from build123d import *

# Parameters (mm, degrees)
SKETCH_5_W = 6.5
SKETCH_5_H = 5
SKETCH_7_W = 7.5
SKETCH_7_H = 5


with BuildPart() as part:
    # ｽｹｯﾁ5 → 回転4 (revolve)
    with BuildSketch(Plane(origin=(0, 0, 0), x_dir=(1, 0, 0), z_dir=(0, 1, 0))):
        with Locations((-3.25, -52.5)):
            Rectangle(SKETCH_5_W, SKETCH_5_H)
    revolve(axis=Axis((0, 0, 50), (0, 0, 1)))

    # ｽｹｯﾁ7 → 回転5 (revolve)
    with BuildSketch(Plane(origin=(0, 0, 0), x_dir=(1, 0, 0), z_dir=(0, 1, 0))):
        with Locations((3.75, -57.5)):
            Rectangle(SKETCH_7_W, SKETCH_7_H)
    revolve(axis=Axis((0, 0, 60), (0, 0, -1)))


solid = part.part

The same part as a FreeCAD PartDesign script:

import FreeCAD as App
import Part
import Sketcher
from FreeCAD import Vector


def add_polygon(sketch, points):
    """Adds a closed chain of lines whose ends are joined by coincident constraints."""
    first, n = sketch.GeometryCount, len(points)
    for a, b in zip(points, points[1:] + points[:1]):
        sketch.addGeometry(Part.LineSegment(App.Vector(*a, 0), App.Vector(*b, 0)), False)
    for i in range(n):
        sketch.addConstraint(Sketcher.Constraint("Coincident", first + i, 2, first + (i + 1) % n, 1))

doc = App.newDocument("Part")
body = doc.addObject("PartDesign::Body", "Body")

sketch1 = doc.addObject("Sketcher::SketchObject", "Sketch")
body.addObject(sketch1)
sketch1.AttachmentSupport = (doc.XZ_Plane, [""])
sketch1.MapMode = "FlatFace"
add_polygon(sketch1, [(-6, 50), (-6, 55), (0, 55), (0, 50)])
sketch1.addConstraint([
    Sketcher.Constraint("Vertical", 0),
    Sketcher.Constraint("Horizontal", 1),
    Sketcher.Constraint("Vertical", 2),
    Sketcher.Constraint("Horizontal", 3),
    Sketcher.Constraint("PointOnObject", 1, 2, -2),
    Sketcher.Constraint("DistanceY", 0, 1, 0, 2, 5.0),
    Sketcher.Constraint("DistanceX", 1, 1, 1, 2, 6.5),
    Sketcher.Constraint("DistanceY", -1, 1, 0, 2, 55.0),
])
revolution = doc.addObject("PartDesign::Revolution", "Revolution")
body.addObject(revolution)
revolution.Profile = sketch1
revolution.ReferenceAxis = (sketch1, ["V_Axis"])
revolution.Angle = 360

sketch2 = doc.addObject("Sketcher::SketchObject", "Sketch001")
body.addObject(sketch2)
sketch2.AttachmentSupport = (doc.XZ_Plane, [""])
sketch2.MapMode = "FlatFace"
add_polygon(sketch2, [(0, 55), (0, 60), (8, 60), (8, 55)])
sketch2.addConstraint([
    Sketcher.Constraint("Vertical", 0),
    Sketcher.Constraint("Horizontal", 1),
    Sketcher.Constraint("Vertical", 2),
    Sketcher.Constraint("Horizontal", 3),
    Sketcher.Constraint("PointOnObject", 0, 2, -2),
    Sketcher.Constraint("DistanceY", 0, 1, 0, 2, 5.0),
    Sketcher.Constraint("DistanceX", 1, 1, 1, 2, 7.5),
    Sketcher.Constraint("DistanceY", -1, 1, 0, 2, 60.0),
])
revolution2 = doc.addObject("PartDesign::Revolution", "Revolution001")
body.addObject(revolution2)
revolution2.Profile = sketch2
revolution2.ReferenceAxis = (sketch2, ["V_Axis"])
revolution2.Angle = 360

doc.recompute()
